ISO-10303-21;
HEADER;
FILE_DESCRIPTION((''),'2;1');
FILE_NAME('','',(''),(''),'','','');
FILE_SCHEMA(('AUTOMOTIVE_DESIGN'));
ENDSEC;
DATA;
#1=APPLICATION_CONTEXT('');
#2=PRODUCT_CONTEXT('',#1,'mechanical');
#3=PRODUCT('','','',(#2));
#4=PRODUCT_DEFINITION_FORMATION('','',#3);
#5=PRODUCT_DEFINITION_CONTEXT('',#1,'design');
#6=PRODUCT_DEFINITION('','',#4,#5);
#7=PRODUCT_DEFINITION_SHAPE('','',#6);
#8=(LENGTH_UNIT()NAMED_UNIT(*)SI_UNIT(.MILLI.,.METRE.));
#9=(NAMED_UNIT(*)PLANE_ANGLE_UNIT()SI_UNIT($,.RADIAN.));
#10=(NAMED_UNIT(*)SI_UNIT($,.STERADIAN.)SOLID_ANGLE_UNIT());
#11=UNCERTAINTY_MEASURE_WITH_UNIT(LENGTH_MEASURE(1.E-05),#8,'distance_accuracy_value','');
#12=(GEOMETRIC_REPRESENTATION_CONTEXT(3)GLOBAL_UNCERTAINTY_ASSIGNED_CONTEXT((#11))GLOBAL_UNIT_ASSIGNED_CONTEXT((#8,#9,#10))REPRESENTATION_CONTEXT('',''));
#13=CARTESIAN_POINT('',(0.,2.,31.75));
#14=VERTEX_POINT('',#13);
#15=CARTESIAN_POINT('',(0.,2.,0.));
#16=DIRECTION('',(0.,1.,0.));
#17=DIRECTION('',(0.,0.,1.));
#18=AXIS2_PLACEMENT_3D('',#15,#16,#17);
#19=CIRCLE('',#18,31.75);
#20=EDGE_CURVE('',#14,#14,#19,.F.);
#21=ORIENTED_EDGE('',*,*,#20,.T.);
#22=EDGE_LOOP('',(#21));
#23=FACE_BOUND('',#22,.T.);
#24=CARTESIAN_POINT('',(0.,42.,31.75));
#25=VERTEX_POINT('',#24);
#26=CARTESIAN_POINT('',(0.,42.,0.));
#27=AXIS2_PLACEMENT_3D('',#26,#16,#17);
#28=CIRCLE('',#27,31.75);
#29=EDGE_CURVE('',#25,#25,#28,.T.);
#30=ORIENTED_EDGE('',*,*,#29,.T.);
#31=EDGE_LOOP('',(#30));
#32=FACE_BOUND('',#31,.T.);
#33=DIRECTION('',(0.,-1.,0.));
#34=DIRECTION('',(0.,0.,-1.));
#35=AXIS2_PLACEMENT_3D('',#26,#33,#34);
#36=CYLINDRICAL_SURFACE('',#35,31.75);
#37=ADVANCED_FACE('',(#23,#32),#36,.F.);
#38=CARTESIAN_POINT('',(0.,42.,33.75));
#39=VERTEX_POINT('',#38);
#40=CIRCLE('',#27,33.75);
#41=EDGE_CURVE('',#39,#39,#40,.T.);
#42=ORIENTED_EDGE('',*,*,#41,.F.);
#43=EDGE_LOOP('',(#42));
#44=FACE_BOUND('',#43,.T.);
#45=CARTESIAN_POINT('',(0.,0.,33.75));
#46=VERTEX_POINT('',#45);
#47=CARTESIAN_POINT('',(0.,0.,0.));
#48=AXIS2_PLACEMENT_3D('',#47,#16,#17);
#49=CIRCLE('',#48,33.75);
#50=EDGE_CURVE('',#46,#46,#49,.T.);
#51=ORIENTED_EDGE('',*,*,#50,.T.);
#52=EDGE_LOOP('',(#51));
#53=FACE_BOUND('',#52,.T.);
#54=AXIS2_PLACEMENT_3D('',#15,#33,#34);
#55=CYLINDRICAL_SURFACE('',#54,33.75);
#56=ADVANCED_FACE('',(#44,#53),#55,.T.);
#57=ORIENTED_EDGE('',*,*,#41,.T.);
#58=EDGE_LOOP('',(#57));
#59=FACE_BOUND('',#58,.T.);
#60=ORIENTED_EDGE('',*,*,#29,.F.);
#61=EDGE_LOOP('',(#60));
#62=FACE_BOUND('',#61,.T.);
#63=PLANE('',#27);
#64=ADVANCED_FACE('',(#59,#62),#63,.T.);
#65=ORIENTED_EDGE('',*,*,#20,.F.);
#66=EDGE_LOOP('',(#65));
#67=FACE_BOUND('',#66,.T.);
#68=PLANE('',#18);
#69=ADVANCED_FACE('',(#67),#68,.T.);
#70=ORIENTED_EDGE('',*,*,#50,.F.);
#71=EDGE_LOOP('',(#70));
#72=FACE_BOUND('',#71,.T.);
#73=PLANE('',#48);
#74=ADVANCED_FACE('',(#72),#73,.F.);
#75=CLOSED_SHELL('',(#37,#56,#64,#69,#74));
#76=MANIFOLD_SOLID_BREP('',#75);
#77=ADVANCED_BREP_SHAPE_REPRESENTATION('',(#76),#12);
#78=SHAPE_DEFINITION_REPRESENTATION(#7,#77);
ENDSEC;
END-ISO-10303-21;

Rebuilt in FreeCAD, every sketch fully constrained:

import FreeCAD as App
import Part
import Sketcher
from FreeCAD import Vector

doc = App.newDocument("Part")
body = doc.addObject("PartDesign::Body", "Body")

sketch1 = body.newObject("Sketcher::SketchObject", "Sketch")
sketch1.AttachmentSupport = (doc.getObject("XZ_Plane"), [""])
sketch1.MapMode = "FlatFace"
sketch1.addGeometry(Part.Circle(Vector(0, 0, 0), Vector(0, 0, 1), 33.75), False)
sketch1.addConstraint(Sketcher.Constraint("Coincident", 0, 3, -1, 1))
sketch1.addConstraint(Sketcher.Constraint("Diameter", 0, 67.5))
pad1 = body.newObject("PartDesign::Pad", "Pad")
pad1.Profile = sketch1
pad1.Length = 2
pad1.Reversed = True

sketch2 = body.newObject("Sketcher::SketchObject", "Sketch001")
sketch2.AttachmentSupport = (doc.getObject("XZ_Plane"), [""])
sketch2.MapMode = "FlatFace"
sketch2.AttachmentOffset = App.Placement(Vector(0, 0, -2), App.Rotation())
sketch2.addGeometry(Part.Circle(Vector(0, 0, 0), Vector(0, 0, 1), 33.75), False)
sketch2.addGeometry(Part.Circle(Vector(0, 0, 0), Vector(0, 0, 1), 31.75), False)
sketch2.addConstraint(Sketcher.Constraint("Coincident", 0, 3, -1, 1))
sketch2.addConstraint(Sketcher.Constraint("Coincident", 1, 3, -1, 1))
sketch2.addConstraint(Sketcher.Constraint("Diameter", 0, 67.5))
sketch2.addConstraint(Sketcher.Constraint("Diameter", 1, 63.5))
pad2 = body.newObject("PartDesign::Pad", "Pad001")
pad2.Profile = sketch2
pad2.Length = 40
pad2.Reversed = True

doc.recompute()
